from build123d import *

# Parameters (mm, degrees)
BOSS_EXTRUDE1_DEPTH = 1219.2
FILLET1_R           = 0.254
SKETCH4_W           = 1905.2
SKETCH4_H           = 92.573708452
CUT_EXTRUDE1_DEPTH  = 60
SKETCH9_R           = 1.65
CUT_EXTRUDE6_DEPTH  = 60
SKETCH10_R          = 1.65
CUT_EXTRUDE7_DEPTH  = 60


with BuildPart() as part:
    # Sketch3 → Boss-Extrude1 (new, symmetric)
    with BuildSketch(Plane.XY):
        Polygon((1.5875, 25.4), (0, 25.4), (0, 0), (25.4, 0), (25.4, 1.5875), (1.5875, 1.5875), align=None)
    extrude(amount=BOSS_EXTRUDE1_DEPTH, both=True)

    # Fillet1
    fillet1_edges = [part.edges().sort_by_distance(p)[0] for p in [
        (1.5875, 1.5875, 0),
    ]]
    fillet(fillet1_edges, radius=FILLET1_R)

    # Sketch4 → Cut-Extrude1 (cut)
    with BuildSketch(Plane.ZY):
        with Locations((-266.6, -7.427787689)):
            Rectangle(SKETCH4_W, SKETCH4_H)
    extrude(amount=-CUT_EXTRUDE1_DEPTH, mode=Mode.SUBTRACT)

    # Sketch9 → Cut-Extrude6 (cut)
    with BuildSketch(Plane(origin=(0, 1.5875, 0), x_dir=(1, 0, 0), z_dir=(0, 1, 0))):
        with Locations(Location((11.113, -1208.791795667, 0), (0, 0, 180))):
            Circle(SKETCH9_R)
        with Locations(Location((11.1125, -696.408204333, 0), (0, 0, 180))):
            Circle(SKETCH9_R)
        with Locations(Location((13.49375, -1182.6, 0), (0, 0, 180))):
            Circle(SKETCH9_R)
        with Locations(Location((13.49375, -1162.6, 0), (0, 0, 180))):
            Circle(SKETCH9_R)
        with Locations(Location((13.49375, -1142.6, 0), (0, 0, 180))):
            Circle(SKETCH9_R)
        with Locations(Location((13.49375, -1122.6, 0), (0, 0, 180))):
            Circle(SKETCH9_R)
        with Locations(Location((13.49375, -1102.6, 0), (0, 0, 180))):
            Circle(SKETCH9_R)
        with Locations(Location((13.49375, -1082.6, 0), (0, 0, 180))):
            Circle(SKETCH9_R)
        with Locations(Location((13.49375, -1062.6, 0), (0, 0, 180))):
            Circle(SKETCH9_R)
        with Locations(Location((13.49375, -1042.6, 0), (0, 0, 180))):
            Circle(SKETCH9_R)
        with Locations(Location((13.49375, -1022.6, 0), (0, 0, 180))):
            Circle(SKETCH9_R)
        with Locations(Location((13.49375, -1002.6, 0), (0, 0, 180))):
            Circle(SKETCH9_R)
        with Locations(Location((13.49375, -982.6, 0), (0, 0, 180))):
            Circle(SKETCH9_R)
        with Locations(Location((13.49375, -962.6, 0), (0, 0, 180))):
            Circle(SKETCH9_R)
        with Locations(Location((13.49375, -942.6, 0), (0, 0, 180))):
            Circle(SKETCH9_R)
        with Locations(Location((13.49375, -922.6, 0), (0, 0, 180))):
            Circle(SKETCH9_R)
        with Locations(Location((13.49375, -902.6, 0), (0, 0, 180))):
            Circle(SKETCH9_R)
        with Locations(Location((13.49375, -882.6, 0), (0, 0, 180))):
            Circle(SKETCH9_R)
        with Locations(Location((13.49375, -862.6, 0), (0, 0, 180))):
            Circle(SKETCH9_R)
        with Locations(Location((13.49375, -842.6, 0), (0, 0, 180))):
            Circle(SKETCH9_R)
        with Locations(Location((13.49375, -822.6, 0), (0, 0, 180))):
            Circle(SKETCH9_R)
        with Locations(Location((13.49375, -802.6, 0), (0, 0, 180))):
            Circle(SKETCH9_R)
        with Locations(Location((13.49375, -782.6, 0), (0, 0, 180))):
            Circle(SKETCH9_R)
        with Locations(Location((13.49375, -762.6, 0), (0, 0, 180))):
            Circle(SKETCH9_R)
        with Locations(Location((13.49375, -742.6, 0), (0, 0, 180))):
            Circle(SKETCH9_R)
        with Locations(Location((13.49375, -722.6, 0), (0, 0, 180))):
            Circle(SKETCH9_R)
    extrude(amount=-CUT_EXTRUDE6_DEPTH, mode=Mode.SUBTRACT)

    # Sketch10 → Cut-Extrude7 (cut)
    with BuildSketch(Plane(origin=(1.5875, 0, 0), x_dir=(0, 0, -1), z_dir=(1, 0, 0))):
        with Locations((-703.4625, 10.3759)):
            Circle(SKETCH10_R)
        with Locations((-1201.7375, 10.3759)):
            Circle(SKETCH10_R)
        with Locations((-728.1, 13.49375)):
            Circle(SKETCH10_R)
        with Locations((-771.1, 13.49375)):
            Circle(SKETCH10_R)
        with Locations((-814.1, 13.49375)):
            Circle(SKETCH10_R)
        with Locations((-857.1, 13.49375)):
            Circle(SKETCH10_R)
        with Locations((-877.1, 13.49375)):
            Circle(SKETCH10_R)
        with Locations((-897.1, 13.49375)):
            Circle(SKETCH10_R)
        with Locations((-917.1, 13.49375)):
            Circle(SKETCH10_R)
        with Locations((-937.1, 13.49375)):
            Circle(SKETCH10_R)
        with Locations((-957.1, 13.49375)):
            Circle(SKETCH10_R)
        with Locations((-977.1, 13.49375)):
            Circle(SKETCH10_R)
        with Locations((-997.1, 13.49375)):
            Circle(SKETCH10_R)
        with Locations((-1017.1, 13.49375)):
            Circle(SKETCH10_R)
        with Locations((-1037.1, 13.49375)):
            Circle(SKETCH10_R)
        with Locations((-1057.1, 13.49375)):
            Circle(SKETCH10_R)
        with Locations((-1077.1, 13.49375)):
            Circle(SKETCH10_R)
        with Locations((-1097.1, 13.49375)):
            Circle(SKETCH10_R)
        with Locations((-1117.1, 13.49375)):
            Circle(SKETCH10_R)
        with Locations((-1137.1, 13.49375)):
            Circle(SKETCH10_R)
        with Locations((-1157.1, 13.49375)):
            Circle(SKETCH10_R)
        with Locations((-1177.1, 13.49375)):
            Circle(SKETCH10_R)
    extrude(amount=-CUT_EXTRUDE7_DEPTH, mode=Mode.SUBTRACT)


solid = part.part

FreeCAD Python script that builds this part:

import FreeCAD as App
import Part
import Sketcher
Q = App.Units.Quantity


def edges_at(feature, points):
    """Names of the edges that pass closest to the given points."""
    edges = feature.Shape.Edges
    near = lambda p: min(range(len(edges)), key=lambda i: edges[i].distToShape(Part.Vertex(*p))[0])
    return sorted({f"Edge{near(p) + 1}" for p in points})

doc = App.newDocument("Part")
body = doc.addObject("PartDesign::Body", "Body")

sketch1 = doc.addObject("Sketcher::SketchObject", "Sketch")
body.addObject(sketch1)
sketch1.AttachmentSupport = (doc.XY_Plane, [""])
sketch1.MapMode = "FlatFace"
sketch1.addGeometry([
    Part.LineSegment(App.Vector(1.6, 25.4, 0), App.Vector(0, 25.4, 0)),
    Part.LineSegment(App.Vector(0, 25.4, 0), App.Vector(0, 0, 0)),
    Part.LineSegment(App.Vector(0, 0, 0), App.Vector(25.4, 0, 0)),
    Part.LineSegment(App.Vector(25.4, 0, 0), App.Vector(25.4, 1.6, 0)),
    Part.LineSegment(App.Vector(25.4, 1.6, 0), App.Vector(1.6, 1.6, 0)),
    Part.LineSegment(App.Vector(1.6, 1.6, 0), App.Vector(1.6, 25.4, 0)),
], False)
sketch1.addConstraint([
    Sketcher.Constraint("Coincident", 0, 2, 1, 1),
    Sketcher.Constraint("Coincident", 1, 2, 2, 1),
    Sketcher.Constraint("Coincident", 2, 2, 3, 1),
    Sketcher.Constraint("Coincident", 3, 2, 4, 1),
    Sketcher.Constraint("Coincident", 4, 2, 5, 1),
    Sketcher.Constraint("Coincident", 5, 2, 0, 1),
    Sketcher.Constraint("Horizontal", 0),
    Sketcher.Constraint("Vertical", 1),
    Sketcher.Constraint("Horizontal", 2),
    Sketcher.Constraint("Vertical", 3),
    Sketcher.Constraint("Horizontal", 4),
    Sketcher.Constraint("Vertical", 5),
    Sketcher.Constraint("Coincident", 1, 2, -1, 1),
    Sketcher.Constraint("Equal", 2, 1),
    Sketcher.Constraint("Equal", 0, 3),
    Sketcher.Constraint("DistanceX", 2, 1, 2, 2, Q("1 in")),
    Sketcher.Constraint("DistanceX", 0, 2, 0, 1, Q("0.0625 in")),
])
pad1 = doc.addObject("PartDesign::Pad", "Pad")
body.addObject(pad1)
pad1.Profile = sketch1
pad1.Length = Q("96 in")
pad1.Midplane = True
doc.recompute()

fillet = doc.addObject("PartDesign::Fillet", "Fillet")
body.addObject(fillet)
fillet.Base = (pad1, edges_at(pad1, [(1.587, 1.587, 0)]))
fillet.Radius = Q("0.01 in")

sketch2 = doc.addObject("Sketcher::SketchObject", "Sketch001")
body.addObject(sketch2)
sketch2.AttachmentSupport = (doc.YZ_Plane, [""])
sketch2.MapMode = "FlatFace"
sketch2.addGeometry([
    Part.LineSegment(App.Vector(39, -1219, 0), App.Vector(-54, -1219, 0)),
    Part.LineSegment(App.Vector(-54, -1219, 0), App.Vector(-54, 686, 0)),
    Part.LineSegment(App.Vector(-54, 686, 0), App.Vector(39, 686, 0)),
    Part.LineSegment(App.Vector(39, 686, 0), App.Vector(39, -1219, 0)),
], False)
sketch2.addConstraint([
    Sketcher.Constraint("Coincident", 0, 2, 1, 1),
    Sketcher.Constraint("Coincident", 1, 2, 2, 1),
    Sketcher.Constraint("Coincident", 2, 2, 3, 1),
    Sketcher.Constraint("Coincident", 3, 2, 0, 1),
    Sketcher.Constraint("Horizontal", 0),
    Sketcher.Constraint("Vertical", 1),
    Sketcher.Constraint("Horizontal", 2),
    Sketcher.Constraint("Vertical", 3),
    Sketcher.Constraint("DistanceY", 0, 2, -1, 1, Q("48 in")),
    Sketcher.Constraint("DistanceY", 1, 1, 1, 2, 1905.2),
    Sketcher.Constraint("DistanceX", 0, 2, 0, 1, 92.573708),
    Sketcher.Constraint("DistanceX", 0, 2, -1, 1, 53.714642),
])
pocket1 = doc.addObject("PartDesign::Pocket", "Pocket")
body.addObject(pocket1)
pocket1.Profile = sketch2
pocket1.Length = 60
pocket1.Reversed = True

sketch3 = doc.addObject("Sketcher::SketchObject", "Sketch002")
body.addObject(sketch3)
sketch3.AttachmentSupport = (doc.XZ_Plane, [""])
sketch3.MapMode = "FlatFace"
sketch3.AttachmentOffset = App.Placement(App.Vector(0, 0, -0.0625 * 25.4), App.Rotation())
sketch3.addGeometry([
    Part.Circle(App.Vector(11.1, 1208.8, 0), App.Vector(0, 0, 1), 1.6),
    Part.Circle(App.Vector(11.1, 696.4, 0), App.Vector(0, 0, 1), 1.6),
    Part.Circle(App.Vector(13.5, 1182.6, 0), App.Vector(0, 0, 1), 1.6),
    Part.Circle(App.Vector(13.5, 1162.6, 0), App.Vector(0, 0, 1), 1.6),
    Part.Circle(App.Vector(13.5, 1142.6, 0), App.Vector(0, 0, 1), 1.6),
    Part.Circle(App.Vector(13.5, 1122.6, 0), App.Vector(0, 0, 1), 1.6),
    Part.Circle(App.Vector(13.5, 1102.6, 0), App.Vector(0, 0, 1), 1.6),
    Part.Circle(App.Vector(13.5, 1082.6, 0), App.Vector(0, 0, 1), 1.6),
    Part.Circle(App.Vector(13.5, 1062.6, 0), App.Vector(0, 0, 1), 1.6),
    Part.Circle(App.Vector(13.5, 1042.6, 0), App.Vector(0, 0, 1), 1.6),
    Part.Circle(App.Vector(13.5, 1022.6, 0), App.Vector(0, 0, 1), 1.6),
    Part.Circle(App.Vector(13.5, 1002.6, 0), App.Vector(0, 0, 1), 1.6),
    Part.Circle(App.Vector(13.5, 982.6, 0), App.Vector(0, 0, 1), 1.6),
    Part.Circle(App.Vector(13.5, 962.6, 0), App.Vector(0, 0, 1), 1.6),
    Part.Circle(App.Vector(13.5, 942.6, 0), App.Vector(0, 0, 1), 1.6),
    Part.Circle(App.Vector(13.5, 922.6, 0), App.Vector(0, 0, 1), 1.6),
    Part.Circle(App.Vector(13.5, 902.6, 0), App.Vector(0, 0, 1), 1.6),
    Part.Circle(App.Vector(13.5, 882.6, 0), App.Vector(0, 0, 1), 1.6),
    Part.Circle(App.Vector(13.5, 862.6, 0), App.Vector(0, 0, 1), 1.6),
    Part.Circle(App.Vector(13.5, 842.6, 0), App.Vector(0, 0, 1), 1.6),
    Part.Circle(App.Vector(13.5, 822.6, 0), App.Vector(0, 0, 1), 1.6),
    Part.Circle(App.Vector(13.5, 802.6, 0), App.Vector(0, 0, 1), 1.6),
    Part.Circle(App.Vector(13.5, 782.6, 0), App.Vector(0, 0, 1), 1.6),
    Part.Circle(App.Vector(13.5, 762.6, 0), App.Vector(0, 0, 1), 1.6),
    Part.Circle(App.Vector(13.5, 742.6, 0), App.Vector(0, 0, 1), 1.6),
    Part.Circle(App.Vector(13.5, 722.6, 0), App.Vector(0, 0, 1), 1.6),
], False)
sketch3.addConstraint([
    Sketcher.Constraint("Equal", 0, 1),
    Sketcher.Constraint("Equal", 1, 2),
    Sketcher.Constraint("Equal", 2, 3),
    Sketcher.Constraint("Equal", 3, 4),
    Sketcher.Constraint("Equal", 4, 5),
    Sketcher.Constraint("Equal", 5, 6),
    Sketcher.Constraint("Equal", 6, 7),
    Sketcher.Constraint("Equal", 7, 8),
    Sketcher.Constraint("Equal", 8, 9),
    Sketcher.Constraint("Equal", 9, 10),
    Sketcher.Constraint("Equal", 10, 11),
    Sketcher.Constraint("Equal", 11, 12),
    Sketcher.Constraint("Equal", 12, 13),
    Sketcher.Constraint("Equal", 13, 14),
    Sketcher.Constraint("Equal", 14, 15),
    Sketcher.Constraint("Equal", 15, 16),
    Sketcher.Constraint("Equal", 16, 17),
    Sketcher.Constraint("Equal", 17, 18),
    Sketcher.Constraint("Equal", 18, 19),
    Sketcher.Constraint("Equal", 19, 20),
    Sketcher.Constraint("Equal", 20, 21),
    Sketcher.Constraint("Equal", 21, 22),
    Sketcher.Constraint("Equal", 22, 23),
    Sketcher.Constraint("Equal", 23, 24),
    Sketcher.Constraint("Equal", 24, 25),
    Sketcher.Constraint("Vertical", 2, 3, 3, 3),
    Sketcher.Constraint("Vertical", 3, 3, 4, 3),
    Sketcher.Constraint("Vertical", 4, 3, 5, 3),
    Sketcher.Constraint("Vertical", 5, 3, 6, 3),
    Sketcher.Constraint("Vertical", 6, 3, 7, 3),
    Sketcher.Constraint("Vertical", 7, 3, 8, 3),
    Sketcher.Constraint("Vertical", 8, 3, 9, 3),
    Sketcher.Constraint("Vertical", 9, 3, 10, 3),
    Sketcher.Constraint("Vertical", 10, 3, 11, 3),
    Sketcher.Constraint("Vertical", 11, 3, 12, 3),
    Sketcher.Constraint("Vertical", 12, 3, 13, 3),
    Sketcher.Constraint("Vertical", 13, 3, 14, 3),
    Sketcher.Constraint("Vertical", 14, 3, 15, 3),
    Sketcher.Constraint("Vertical", 15, 3, 16, 3),
    Sketcher.Constraint("Vertical", 16, 3, 17, 3),
    Sketcher.Constraint("Vertical", 17, 3, 18, 3),
    Sketcher.Constraint("Vertical", 18, 3, 19, 3),
    Sketcher.Constraint("Vertical", 19, 3, 20, 3),
    Sketcher.Constraint("Vertical", 20, 3, 21, 3),
    Sketcher.Constraint("Vertical", 21, 3, 22, 3),
    Sketcher.Constraint("Vertical", 22, 3, 23, 3),
    Sketcher.Constraint("Vertical", 23, 3, 24, 3),
    Sketcher.Constraint("Vertical", 24, 3, 25, 3),
    Sketcher.Constraint("Diameter", 0, 3.3),
    Sketcher.Constraint("DistanceX", -1, 1, 1, 3, Q("0.4375 in")),
    Sketcher.Constraint("DistanceX", -1, 1, 2, 3, Q("0.53125 in")),
    Sketcher.Constraint("DistanceX", -1, 1, 0, 3, 11.113),
    Sketcher.Constraint("DistanceY", -1, 1, 2, 3, 1182.6),
    Sketcher.Constraint("DistanceY", -1, 1, 3, 3, 1162.6),
    Sketcher.Constraint("DistanceY", -1, 1, 4, 3, 1142.6),
    Sketcher.Constraint("DistanceY", -1, 1, 5, 3, 1122.6),
    Sketcher.Constraint("DistanceY", -1, 1, 6, 3, 1102.6),
    Sketcher.Constraint("DistanceY", -1, 1, 7, 3, 1082.6),
    Sketcher.Constraint("DistanceY", -1, 1, 8, 3, 1062.6),
    Sketcher.Constraint("DistanceY", -1, 1, 9, 3, 1042.6),
    Sketcher.Constraint("DistanceY", -1, 1, 10, 3, 1022.6),
    Sketcher.Constraint("DistanceY", -1, 1, 11, 3, 1002.6),
    Sketcher.Constraint("DistanceY", -1, 1, 12, 3, 982.6),
    Sketcher.Constraint("DistanceY", -1, 1, 13, 3, 962.6),
    Sketcher.Constraint("DistanceY", -1, 1, 14, 3, 942.6),
    Sketcher.Constraint("DistanceY", -1, 1, 15, 3, 922.6),
    Sketcher.Constraint("DistanceY", -1, 1, 16, 3, 902.6),
    Sketcher.Constraint("DistanceY", -1, 1, 17, 3, 882.6),
    Sketcher.Constraint("DistanceY", -1, 1, 18, 3, 862.6),
    Sketcher.Constraint("DistanceY", -1, 1, 19, 3, 842.6),
    Sketcher.Constraint("DistanceY", -1, 1, 20, 3, 822.6),
    Sketcher.Constraint("DistanceY", -1, 1, 21, 3, 802.6),
    Sketcher.Constraint("DistanceY", -1, 1, 22, 3, 782.6),
    Sketcher.Constraint("DistanceY", -1, 1, 23, 3, 762.6),
    Sketcher.Constraint("DistanceY", -1, 1, 24, 3, 742.6),
    Sketcher.Constraint("DistanceY", -1, 1, 25, 3, 722.6),
    Sketcher.Constraint("DistanceY", 1, 3, 0, 3, 512.383591),
    Sketcher.Constraint("DistanceY", -1, 1, 0, 3, 1208.791796),
])
pocket2 = doc.addObject("PartDesign::Pocket", "Pocket001")
body.addObject(pocket2)
pocket2.Profile = sketch3
pocket2.Length = 60
pocket2.Reversed = True

sketch4 = doc.addObject("Sketcher::SketchObject", "Sketch003")
body.addObject(sketch4)
sketch4.AttachmentSupport = (doc.YZ_Plane, [""])
sketch4.MapMode = "FlatFace"
sketch4.AttachmentOffset = App.Placement(App.Vector(0, 0, 0.0625 * 25.4), App.Rotation())
sketch4.addGeometry([
    Part.Circle(App.Vector(10.4, 703.5, 0), App.Vector(0, 0, 1), 1.6),
    Part.Circle(App.Vector(10.4, 1201.7, 0), App.Vector(0, 0, 1), 1.6),
    Part.Circle(App.Vector(13.5, 728.1, 0), App.Vector(0, 0, 1), 1.6),
    Part.Circle(App.Vector(13.5, 771.1, 0), App.Vector(0, 0, 1), 1.6),
    Part.Circle(App.Vector(13.5, 814.1, 0), App.Vector(0, 0, 1), 1.6),
    Part.Circle(App.Vector(13.5, 857.1, 0), App.Vector(0, 0, 1), 1.6),
    Part.Circle(App.Vector(13.5, 877.1, 0), App.Vector(0, 0, 1), 1.6),
    Part.Circle(App.Vector(13.5, 897.1, 0), App.Vector(0, 0, 1), 1.6),
    Part.Circle(App.Vector(13.5, 917.1, 0), App.Vector(0, 0, 1), 1.6),
    Part.Circle(App.Vector(13.5, 937.1, 0), App.Vector(0, 0, 1), 1.6),
    Part.Circle(App.Vector(13.5, 957.1, 0), App.Vector(0, 0, 1), 1.6),
    Part.Circle(App.Vector(13.5, 977.1, 0), App.Vector(0, 0, 1), 1.6),
    Part.Circle(App.Vector(13.5, 997.1, 0), App.Vector(0, 0, 1), 1.6),
    Part.Circle(App.Vector(13.5, 1017.1, 0), App.Vector(0, 0, 1), 1.6),
    Part.Circle(App.Vector(13.5, 1037.1, 0), App.Vector(0, 0, 1), 1.6),
    Part.Circle(App.Vector(13.5, 1057.1, 0), App.Vector(0, 0, 1), 1.6),
    Part.Circle(App.Vector(13.5, 1077.1, 0), App.Vector(0, 0, 1), 1.6),
    Part.Circle(App.Vector(13.5, 1097.1, 0), App.Vector(0, 0, 1), 1.6),
    Part.Circle(App.Vector(13.5, 1117.1, 0), App.Vector(0, 0, 1), 1.6),
    Part.Circle(App.Vector(13.5, 1137.1, 0), App.Vector(0, 0, 1), 1.6),
    Part.Circle(App.Vector(13.5, 1157.1, 0), App.Vector(0, 0, 1), 1.6),
    Part.Circle(App.Vector(13.5, 1177.1, 0), App.Vector(0, 0, 1), 1.6),
], False)
sketch4.addConstraint([
    Sketcher.Constraint("Equal", 0, 1),
    Sketcher.Constraint("Equal", 1, 2),
    Sketcher.Constraint("Equal", 2, 3),
    Sketcher.Constraint("Equal", 3, 4),
    Sketcher.Constraint("Equal", 4, 5),
    Sketcher.Constraint("Equal", 5, 6),
    Sketcher.Constraint("Equal", 6, 7),
    Sketcher.Constraint("Equal", 7, 8),
    Sketcher.Constraint("Equal", 8, 9),
    Sketcher.Constraint("Equal", 9, 10),
    Sketcher.Constraint("Equal", 10, 11),
    Sketcher.Constraint("Equal", 11, 12),
    Sketcher.Constraint("Equal", 12, 13),
    Sketcher.Constraint("Equal", 13, 14),
    Sketcher.Constraint("Equal", 14, 15),
    Sketcher.Constraint("Equal", 15, 16),
    Sketcher.Constraint("Equal", 16, 17),
    Sketcher.Constraint("Equal", 17, 18),
    Sketcher.Constraint("Equal", 18, 19),
    Sketcher.Constraint("Equal", 19, 20),
    Sketcher.Constraint("Equal", 20, 21),
    Sketcher.Constraint("Vertical", 0, 3, 1, 3),
    Sketcher.Constraint("Vertical", 2, 3, 3, 3),
    Sketcher.Constraint("Vertical", 3, 3, 4, 3),
    Sketcher.Constraint("Vertical", 4, 3, 5, 3),
    Sketcher.Constraint("Vertical", 5, 3, 6, 3),
    Sketcher.Constraint("Vertical", 6, 3, 7, 3),
    Sketcher.Constraint("Vertical", 7, 3, 8, 3),
    Sketcher.Constraint("Vertical", 8, 3, 9, 3),
    Sketcher.Constraint("Vertical", 9, 3, 10, 3),
    Sketcher.Constraint("Vertical", 10, 3, 11, 3),
    Sketcher.Constraint("Vertical", 11, 3, 12, 3),
    Sketcher.Constraint("Vertical", 12, 3, 13, 3),
    Sketcher.Constraint("Vertical", 13, 3, 14, 3),
    Sketcher.Constraint("Vertical", 14, 3, 15, 3),
    Sketcher.Constraint("Vertical", 15, 3, 16, 3),
    Sketcher.Constraint("Vertical", 16, 3, 17, 3),
    Sketcher.Constraint("Vertical", 17, 3, 18, 3),
    Sketcher.Constraint("Vertical", 18, 3, 19, 3),
    Sketcher.Constraint("Vertical", 19, 3, 20, 3),
    Sketcher.Constraint("Vertical", 20, 3, 21, 3),
    Sketcher.Constraint("Diameter", 0, 3.3),
    Sketcher.Constraint("DistanceY", -1, 1, 1, 3, Q("47.3125 in")),
    Sketcher.Constraint("DistanceX", -1, 1, 2, 3, Q("0.53125 in")),
    Sketcher.Constraint("DistanceX", -1, 1, 0, 3, Q("0.4085 in")),
    Sketcher.Constraint("DistanceY", -1, 1, 0, 3, 703.4625),
    Sketcher.Constraint("DistanceY", -1, 1, 2, 3, 728.1),
    Sketcher.Constraint("DistanceY", -1, 1, 3, 3, 771.1),
    Sketcher.Constraint("DistanceY", -1, 1, 4, 3, 814.1),
    Sketcher.Constraint("DistanceY", -1, 1, 5, 3, 857.1),
    Sketcher.Constraint("DistanceY", -1, 1, 6, 3, 877.1),
    Sketcher.Constraint("DistanceY", -1, 1, 7, 3, 897.1),
    Sketcher.Constraint("DistanceY", -1, 1, 8, 3, 917.1),
    Sketcher.Constraint("DistanceY", -1, 1, 9, 3, 937.1),
    Sketcher.Constraint("DistanceY", -1, 1, 10, 3, 957.1),
    Sketcher.Constraint("DistanceY", -1, 1, 11, 3, 977.1),
    Sketcher.Constraint("DistanceY", -1, 1, 12, 3, 997.1),
    Sketcher.Constraint("DistanceY", -1, 1, 13, 3, 1017.1),
    Sketcher.Constraint("DistanceY", -1, 1, 14, 3, 1037.1),
    Sketcher.Constraint("DistanceY", -1, 1, 15, 3, 1057.1),
    Sketcher.Constraint("DistanceY", -1, 1, 16, 3, 1077.1),
    Sketcher.Constraint("DistanceY", -1, 1, 17, 3, 1097.1),
    Sketcher.Constraint("DistanceY", -1, 1, 18, 3, 1117.1),
    Sketcher.Constraint("DistanceY", -1, 1, 19, 3, 1137.1),
    Sketcher.Constraint("DistanceY", -1, 1, 20, 3, 1157.1),
    Sketcher.Constraint("DistanceY", -1, 1, 21, 3, 1177.1),
])
pocket3 = doc.addObject("PartDesign::Pocket", "Pocket002")
body.addObject(pocket3)
pocket3.Profile = sketch4
pocket3.Length = 60

doc.recompute()
